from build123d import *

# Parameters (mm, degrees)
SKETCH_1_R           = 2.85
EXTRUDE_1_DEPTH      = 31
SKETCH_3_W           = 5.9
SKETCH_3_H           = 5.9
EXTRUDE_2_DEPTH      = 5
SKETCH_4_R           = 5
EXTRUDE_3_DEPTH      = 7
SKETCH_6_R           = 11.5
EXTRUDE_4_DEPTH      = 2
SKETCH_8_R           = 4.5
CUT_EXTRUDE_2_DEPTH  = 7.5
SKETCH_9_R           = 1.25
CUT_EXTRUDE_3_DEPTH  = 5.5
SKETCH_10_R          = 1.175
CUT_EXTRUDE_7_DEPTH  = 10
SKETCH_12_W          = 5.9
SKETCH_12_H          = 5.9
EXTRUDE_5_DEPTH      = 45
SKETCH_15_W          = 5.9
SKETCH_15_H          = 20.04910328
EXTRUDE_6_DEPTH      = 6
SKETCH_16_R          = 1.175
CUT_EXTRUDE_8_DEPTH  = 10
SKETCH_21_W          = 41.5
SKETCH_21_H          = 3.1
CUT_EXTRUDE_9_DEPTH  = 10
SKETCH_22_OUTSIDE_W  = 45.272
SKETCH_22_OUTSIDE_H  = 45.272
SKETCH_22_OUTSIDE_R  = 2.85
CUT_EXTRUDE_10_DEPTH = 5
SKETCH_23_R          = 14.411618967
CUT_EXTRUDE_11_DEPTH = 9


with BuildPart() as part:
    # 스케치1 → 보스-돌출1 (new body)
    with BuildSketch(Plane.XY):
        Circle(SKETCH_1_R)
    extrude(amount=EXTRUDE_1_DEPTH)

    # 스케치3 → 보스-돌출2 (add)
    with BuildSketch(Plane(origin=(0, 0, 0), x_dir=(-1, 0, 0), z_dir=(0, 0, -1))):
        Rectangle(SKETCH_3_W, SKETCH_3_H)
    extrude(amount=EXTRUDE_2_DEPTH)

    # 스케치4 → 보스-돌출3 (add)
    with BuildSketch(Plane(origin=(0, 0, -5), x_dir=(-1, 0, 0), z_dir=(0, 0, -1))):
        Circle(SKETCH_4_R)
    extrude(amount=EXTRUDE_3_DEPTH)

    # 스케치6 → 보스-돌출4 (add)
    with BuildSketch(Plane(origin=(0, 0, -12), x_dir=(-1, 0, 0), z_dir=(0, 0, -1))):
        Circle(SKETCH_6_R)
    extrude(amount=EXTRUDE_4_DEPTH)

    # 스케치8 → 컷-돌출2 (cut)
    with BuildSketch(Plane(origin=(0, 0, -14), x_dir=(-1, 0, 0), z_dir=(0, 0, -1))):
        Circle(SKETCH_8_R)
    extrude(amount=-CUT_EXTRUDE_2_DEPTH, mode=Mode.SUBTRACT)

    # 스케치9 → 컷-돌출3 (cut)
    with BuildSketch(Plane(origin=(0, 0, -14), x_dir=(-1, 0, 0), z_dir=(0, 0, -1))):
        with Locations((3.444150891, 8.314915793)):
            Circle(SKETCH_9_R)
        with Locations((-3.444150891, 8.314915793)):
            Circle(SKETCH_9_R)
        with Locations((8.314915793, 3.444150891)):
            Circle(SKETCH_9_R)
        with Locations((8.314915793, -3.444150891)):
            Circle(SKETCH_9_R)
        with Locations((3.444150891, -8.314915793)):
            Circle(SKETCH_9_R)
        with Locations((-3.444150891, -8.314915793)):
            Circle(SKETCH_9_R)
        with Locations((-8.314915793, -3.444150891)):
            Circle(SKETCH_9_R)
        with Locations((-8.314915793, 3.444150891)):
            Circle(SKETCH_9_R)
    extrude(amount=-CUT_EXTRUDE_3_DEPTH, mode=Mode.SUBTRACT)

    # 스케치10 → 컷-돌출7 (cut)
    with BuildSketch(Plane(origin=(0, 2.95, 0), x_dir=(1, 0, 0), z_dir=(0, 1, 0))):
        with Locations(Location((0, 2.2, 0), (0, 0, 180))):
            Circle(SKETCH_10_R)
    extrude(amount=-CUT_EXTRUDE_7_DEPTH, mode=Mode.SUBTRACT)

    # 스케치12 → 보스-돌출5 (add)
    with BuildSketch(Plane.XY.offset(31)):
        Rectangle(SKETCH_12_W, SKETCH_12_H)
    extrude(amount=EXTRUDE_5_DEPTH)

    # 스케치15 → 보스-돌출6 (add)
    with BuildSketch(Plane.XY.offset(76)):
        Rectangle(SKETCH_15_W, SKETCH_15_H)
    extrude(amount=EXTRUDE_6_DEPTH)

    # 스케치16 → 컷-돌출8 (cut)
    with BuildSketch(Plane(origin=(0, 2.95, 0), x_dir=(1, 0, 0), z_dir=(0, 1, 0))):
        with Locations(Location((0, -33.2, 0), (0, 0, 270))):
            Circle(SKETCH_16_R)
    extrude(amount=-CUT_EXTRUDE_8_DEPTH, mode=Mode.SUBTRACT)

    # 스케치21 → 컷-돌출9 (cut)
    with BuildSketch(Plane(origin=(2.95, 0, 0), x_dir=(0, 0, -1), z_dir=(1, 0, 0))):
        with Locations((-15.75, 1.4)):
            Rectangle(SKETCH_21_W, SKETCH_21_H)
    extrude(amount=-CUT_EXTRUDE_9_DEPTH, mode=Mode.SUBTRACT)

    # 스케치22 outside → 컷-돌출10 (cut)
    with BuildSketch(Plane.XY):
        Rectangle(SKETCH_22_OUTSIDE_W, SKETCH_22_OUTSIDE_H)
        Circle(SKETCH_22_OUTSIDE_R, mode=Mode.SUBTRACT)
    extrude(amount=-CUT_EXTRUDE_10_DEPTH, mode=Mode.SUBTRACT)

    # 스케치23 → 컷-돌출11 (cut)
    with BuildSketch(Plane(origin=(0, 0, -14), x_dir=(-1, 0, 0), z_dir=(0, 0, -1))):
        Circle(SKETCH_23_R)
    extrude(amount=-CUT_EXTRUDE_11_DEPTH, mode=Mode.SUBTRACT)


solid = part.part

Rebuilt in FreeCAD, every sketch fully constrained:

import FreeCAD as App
import Part
import Sketcher
Q = App.Units.Quantity

doc = App.newDocument("Part")
body = doc.addObject("PartDesign::Body", "Body")

sketch1 = doc.addObject("Sketcher::SketchObject", "Sketch")
body.addObject(sketch1)
sketch1.AttachmentSupport = (doc.XY_Plane, [""])
sketch1.MapMode = "FlatFace"
sketch1.addGeometry(Part.Circle(App.Vector(0, 0, 0), App.Vector(0, 0, 1), 2.85), False)
sketch1.addConstraint([
    Sketcher.Constraint("Coincident", 0, 3, -1, 1),
    Sketcher.Constraint("Diameter", 0, Q("5.7 mm")),
])
pad1 = doc.addObject("PartDesign::Pad", "Pad")
body.addObject(pad1)
pad1.Profile = sketch1
pad1.Length = 31

sketch2 = doc.addObject("Sketcher::SketchObject", "Sketch001")
body.addObject(sketch2)
sketch2.AttachmentSupport = (doc.XY_Plane, [""])
sketch2.MapMode = "FlatFace"
sketch2.addGeometry([
    Part.LineSegment(App.Vector(2.95, 2.95, 0), App.Vector(2.95, -2.95, 0)),
    Part.LineSegment(App.Vector(2.95, -2.95, 0), App.Vector(-2.95, -2.95, 0)),
    Part.LineSegment(App.Vector(-2.95, -2.95, 0), App.Vector(-2.95, 2.95, 0)),
    Part.LineSegment(App.Vector(-2.95, 2.95, 0), App.Vector(2.95, 2.95, 0)),
], False)
sketch2.addConstraint([
    Sketcher.Constraint("Coincident", 0, 2, 1, 1),
    Sketcher.Constraint("Coincident", 1, 2, 2, 1),
    Sketcher.Constraint("Coincident", 2, 2, 3, 1),
    Sketcher.Constraint("Coincident", 3, 2, 0, 1),
    Sketcher.Constraint("Vertical", 0),
    Sketcher.Constraint("Horizontal", 1),
    Sketcher.Constraint("Vertical", 2),
    Sketcher.Constraint("Horizontal", 3),
    Sketcher.Constraint("Symmetric", 0, 2, 2, 2, -1, 1),
    Sketcher.Constraint("Equal", 3, 0),
    Sketcher.Constraint("DistanceX", 1, 2, 1, 1, Q("5.9 mm")),
])
pad2 = doc.addObject("PartDesign::Pad", "Pad001")
body.addObject(pad2)
pad2.Profile = sketch2
pad2.Length = 5
pad2.Reversed = True

sketch3 = doc.addObject("Sketcher::SketchObject", "Sketch002")
body.addObject(sketch3)
sketch3.AttachmentSupport = (doc.XY_Plane, [""])
sketch3.MapMode = "FlatFace"
sketch3.AttachmentOffset = App.Placement(App.Vector(0, 0, -5), App.Rotation())
sketch3.addGeometry(Part.Circle(App.Vector(0, 0, 0), App.Vector(0, 0, 1), 5), False)
sketch3.addConstraint([
    Sketcher.Constraint("Coincident", 0, 3, -1, 1),
    Sketcher.Constraint("Diameter", 0, Q("10 mm")),
])
pad3 = doc.addObject("PartDesign::Pad", "Pad002")
body.addObject(pad3)
pad3.Profile = sketch3
pad3.Length = 7
pad3.Reversed = True

sketch4 = doc.addObject("Sketcher::SketchObject", "Sketch003")
body.addObject(sketch4)
sketch4.AttachmentSupport = (doc.XY_Plane, [""])
sketch4.MapMode = "FlatFace"
sketch4.AttachmentOffset = App.Placement(App.Vector(0, 0, -12), App.Rotation())
sketch4.addGeometry(Part.Circle(App.Vector(0, 0, 0), App.Vector(0, 0, 1), 11.5), False)
sketch4.addConstraint([
    Sketcher.Constraint("Coincident", 0, 3, -1, 1),
    Sketcher.Constraint("Diameter", 0, Q("23 mm")),
])
pad4 = doc.addObject("PartDesign::Pad", "Pad003")
body.addObject(pad4)
pad4.Profile = sketch4
pad4.Length = 2
pad4.Reversed = True

sketch5 = doc.addObject("Sketcher::SketchObject", "Sketch004")
body.addObject(sketch5)
sketch5.AttachmentSupport = (doc.XY_Plane, [""])
sketch5.MapMode = "FlatFace"
sketch5.AttachmentOffset = App.Placement(App.Vector(0, 0, -14), App.Rotation())
sketch5.addGeometry(Part.Circle(App.Vector(0, 0, 0), App.Vector(0, 0, 1), 4.5), False)
sketch5.addConstraint([
    Sketcher.Constraint("Coincident", 0, 3, -1, 1),
    Sketcher.Constraint("Diameter", 0, Q("9 mm")),
])
pocket1 = doc.addObject("PartDesign::Pocket", "Pocket")
body.addObject(pocket1)
pocket1.Profile = sketch5
pocket1.Length = 7.5
pocket1.Reversed = True

sketch6 = doc.addObject("Sketcher::SketchObject", "Sketch005")
body.addObject(sketch6)
sketch6.AttachmentSupport = (doc.XY_Plane, [""])
sketch6.MapMode = "FlatFace"
sketch6.AttachmentOffset = App.Placement(App.Vector(0, 0, -14), App.Rotation())
sketch6.addGeometry([
    Part.Circle(App.Vector(-3.444151, 8.314916, 0), App.Vector(0, 0, 1), 1.25),
    Part.Circle(App.Vector(3.444151, 8.314916, 0), App.Vector(0, 0, 1), 1.25),
    Part.Circle(App.Vector(-8.314916, 3.444151, 0), App.Vector(0, 0, 1), 1.25),
    Part.Circle(App.Vector(-8.314916, -3.444151, 0), App.Vector(0, 0, 1), 1.25),
    Part.Circle(App.Vector(-3.444151, -8.314916, 0), App.Vector(0, 0, 1), 1.25),
    Part.Circle(App.Vector(3.444151, -8.314916, 0), App.Vector(0, 0, 1), 1.25),
    Part.Circle(App.Vector(8.314916, -3.444151, 0), App.Vector(0, 0, 1), 1.25),
    Part.Circle(App.Vector(8.314916, 3.444151, 0), App.Vector(0, 0, 1), 1.25),
], False)
sketch6.addConstraint([
    Sketcher.Constraint("Equal", 0, 1),
    Sketcher.Constraint("Equal", 1, 2),
    Sketcher.Constraint("Equal", 2, 3),
    Sketcher.Constraint("Equal", 3, 4),
    Sketcher.Constraint("Equal", 4, 5),
    Sketcher.Constraint("Equal", 5, 6),
    Sketcher.Constraint("Equal", 6, 7),
    Sketcher.Constraint("Symmetric", 1, 3, 4, 3, -1, 1),
    Sketcher.Constraint("Symmetric", 0, 3, 5, 3, -1, 1),
    Sketcher.Constraint("Symmetric", 2, 3, 6, 3, -1, 1),
    Sketcher.Constraint("Symmetric", 3, 3, 7, 3, -1, 1),
    Sketcher.Constraint("Symmetric", 0, 3, 1, 3, -2),
    Sketcher.Constraint("Symmetric", 3, 3, 6, 3, -2),
    Sketcher.Constraint("Diameter", 0, Q("2.5 mm")),
    Sketcher.Constraint("DistanceX", 0, 3, 1, 3, Q("6.888302 mm")),
    Sketcher.Constraint("DistanceY", 3, 3, 2, 3, Q("6.888302 mm")),
    Sketcher.Constraint("DistanceY", 4, 3, 0, 3, Q("16.629832 mm")),
    Sketcher.Constraint("DistanceX", 3, 3, 6, 3, Q("16.629832 mm")),
])
pocket2 = doc.addObject("PartDesign::Pocket", "Pocket001")
body.addObject(pocket2)
pocket2.Profile = sketch6
pocket2.Length = 5.5
pocket2.Reversed = True

sketch7 = doc.addObject("Sketcher::SketchObject", "Sketch006")
body.addObject(sketch7)
sketch7.AttachmentSupport = (doc.XZ_Plane, [""])
sketch7.MapMode = "FlatFace"
sketch7.AttachmentOffset = App.Placement(App.Vector(0, 0, -2.95), App.Rotation())
sketch7.addGeometry(Part.Circle(App.Vector(0, -2.2, 0), App.Vector(0, 0, 1), 1.175), False)
sketch7.addConstraint([
    Sketcher.Constraint("PointOnObject", 0, 3, -2),
    Sketcher.Constraint("Diameter", 0, Q("2.35 mm")),
    Sketcher.Constraint("DistanceY", 0, 3, -1, 1, Q("2.2 mm")),
])
pocket3 = doc.addObject("PartDesign::Pocket", "Pocket002")
body.addObject(pocket3)
pocket3.Profile = sketch7
pocket3.Length = 10
pocket3.Reversed = True

sketch8 = doc.addObject("Sketcher::SketchObject", "Sketch007")
body.addObject(sketch8)
sketch8.AttachmentSupport = (doc.XY_Plane, [""])
sketch8.MapMode = "FlatFace"
sketch8.AttachmentOffset = App.Placement(App.Vector(0, 0, 31), App.Rotation())
sketch8.addGeometry([
    Part.LineSegment(App.Vector(-2.95, 2.95, 0), App.Vector(-2.95, -2.95, 0)),
    Part.LineSegment(App.Vector(-2.95, -2.95, 0), App.Vector(2.95, -2.95, 0)),
    Part.LineSegment(App.Vector(2.95, -2.95, 0), App.Vector(2.95, 2.95, 0)),
    Part.LineSegment(App.Vector(2.95, 2.95, 0), App.Vector(-2.95, 2.95, 0)),
], False)
sketch8.addConstraint([
    Sketcher.Constraint("Coincident", 0, 2, 1, 1),
    Sketcher.Constraint("Coincident", 1, 2, 2, 1),
    Sketcher.Constraint("Coincident", 2, 2, 3, 1),
    Sketcher.Constraint("Coincident", 3, 2, 0, 1),
    Sketcher.Constraint("Vertical", 0),
    Sketcher.Constraint("Horizontal", 1),
    Sketcher.Constraint("Vertical", 2),
    Sketcher.Constraint("Horizontal", 3),
    Sketcher.Constraint("Symmetric", 0, 2, 2, 2, -1, 1),
    Sketcher.Constraint("Equal", 3, 0),
    Sketcher.Constraint("DistanceX", 1, 1, 1, 2, Q("5.9 mm")),
])
pad5 = doc.addObject("PartDesign::Pad", "Pad004")
body.addObject(pad5)
pad5.Profile = sketch8
pad5.Length = 45

sketch9 = doc.addObject("Sketcher::SketchObject", "Sketch008")
body.addObject(sketch9)
sketch9.AttachmentSupport = (doc.XY_Plane, [""])
sketch9.MapMode = "FlatFace"
sketch9.AttachmentOffset = App.Placement(App.Vector(0, 0, 76), App.Rotation())
sketch9.addGeometry([
    Part.LineSegment(App.Vector(-2.95, 10.024552, 0), App.Vector(-2.95, -10.024552, 0)),
    Part.LineSegment(App.Vector(-2.95, -10.024552, 0), App.Vector(2.95, -10.024552, 0)),
    Part.LineSegment(App.Vector(2.95, -10.024552, 0), App.Vector(2.95, 10.024552, 0)),
    Part.LineSegment(App.Vector(2.95, 10.024552, 0), App.Vector(-2.95, 10.024552, 0)),
], False)
sketch9.addConstraint([
    Sketcher.Constraint("Coincident", 0, 2, 1, 1),
    Sketcher.Constraint("Coincident", 1, 2, 2, 1),
    Sketcher.Constraint("Coincident", 2, 2, 3, 1),
    Sketcher.Constraint("Coincident", 3, 2, 0, 1),
    Sketcher.Constraint("Vertical", 0),
    Sketcher.Constraint("Horizontal", 1),
    Sketcher.Constraint("Vertical", 2),
    Sketcher.Constraint("Horizontal", 3),
    Sketcher.Constraint("Symmetric", 0, 2, 2, 2, -1, 1),
    Sketcher.Constraint("DistanceX", 1, 1, 1, 2, Q("5.9 mm")),
    Sketcher.Constraint("DistanceY", 0, 2, 0, 1, Q("20.049103 mm")),
])
pad6 = doc.addObject("PartDesign::Pad", "Pad005")
body.addObject(pad6)
pad6.Profile = sketch9
pad6.Length = 6

sketch10 = doc.addObject("Sketcher::SketchObject", "Sketch009")
body.addObject(sketch10)
sketch10.AttachmentSupport = (doc.XZ_Plane, [""])
sketch10.MapMode = "FlatFace"
sketch10.AttachmentOffset = App.Placement(App.Vector(0, 0, -2.95), App.Rotation())
sketch10.addGeometry(Part.Circle(App.Vector(0, 33.2, 0), App.Vector(0, 0, 1), 1.175), False)
sketch10.addConstraint([
    Sketcher.Constraint("PointOnObject", 0, 3, -2),
    Sketcher.Constraint("Diameter", 0, Q("2.35 mm")),
    Sketcher.Constraint("DistanceY", -1, 1, 0, 3, Q("33.2 mm")),
])
pocket4 = doc.addObject("PartDesign::Pocket", "Pocket003")
body.addObject(pocket4)
pocket4.Profile = sketch10
pocket4.Length = 10
pocket4.Reversed = True

sketch11 = doc.addObject("Sketcher::SketchObject", "Sketch010")
body.addObject(sketch11)
sketch11.AttachmentSupport = (doc.YZ_Plane, [""])
sketch11.MapMode = "FlatFace"
sketch11.AttachmentOffset = App.Placement(App.Vector(0, 0, 2.95), App.Rotation())
sketch11.addGeometry([
    Part.LineSegment(App.Vector(2.95, 36.5, 0), App.Vector(-0.15, 36.5, 0)),
    Part.LineSegment(App.Vector(-0.15, 36.5, 0), App.Vector(-0.15, -5, 0)),
    Part.LineSegment(App.Vector(-0.15, -5, 0), App.Vector(2.95, -5, 0)),
    Part.LineSegment(App.Vector(2.95, -5, 0), App.Vector(2.95, 36.5, 0)),
], False)
sketch11.addConstraint([
    Sketcher.Constraint("Coincident", 0, 2, 1, 1),
    Sketcher.Constraint("Coincident", 1, 2, 2, 1),
    Sketcher.Constraint("Coincident", 2, 2, 3, 1),
    Sketcher.Constraint("Coincident", 3, 2, 0, 1),
    Sketcher.Constraint("Horizontal", 0),
    Sketcher.Constraint("Vertical", 1),
    Sketcher.Constraint("Horizontal", 2),
    Sketcher.Constraint("Vertical", 3),
    Sketcher.Constraint("DistanceX", 0, 2, 0, 1, Q("3.1 mm")),
    Sketcher.Constraint("DistanceY", 1, 2, 1, 1, Q("41.5 mm")),
    Sketcher.Constraint("DistanceY", 1, 2, -1, 1, Q("5 mm")),
    Sketcher.Constraint("DistanceX", 0, 2, -1, 1, Q("0.15 mm")),
])
pocket5 = doc.addObject("PartDesign::Pocket", "Pocket004")
body.addObject(pocket5)
pocket5.Profile = sketch11
pocket5.Length = 10

sketch12 = doc.addObject("Sketcher::SketchObject", "Sketch011")
body.addObject(sketch12)
sketch12.AttachmentSupport = (doc.XY_Plane, [""])
sketch12.MapMode = "FlatFace"
sketch12.addGeometry([
    Part.LineSegment(App.Vector(-22.636, 22.636, 0), App.Vector(-22.636, -22.636, 0)),
    Part.LineSegment(App.Vector(-22.636, -22.636, 0), App.Vector(22.636, -22.636, 0)),
    Part.LineSegment(App.Vector(22.636, -22.636, 0), App.Vector(22.636, 22.636, 0)),
    Part.LineSegment(App.Vector(22.636, 22.636, 0), App.Vector(-22.636, 22.636, 0)),
    Part.Circle(App.Vector(0, 0, 0), App.Vector(0, 0, 1), 2.85),
], False)
sketch12.addConstraint([
    Sketcher.Constraint("Coincident", 0, 2, 1, 1),
    Sketcher.Constraint("Coincident", 1, 2, 2, 1),
    Sketcher.Constraint("Coincident", 2, 2, 3, 1),
    Sketcher.Constraint("Coincident", 3, 2, 0, 1),
    Sketcher.Constraint("Vertical", 0),
    Sketcher.Constraint("Horizontal", 1),
    Sketcher.Constraint("Vertical", 2),
    Sketcher.Constraint("Horizontal", 3),
    Sketcher.Constraint("Coincident", 4, 3, -1, 1),
    Sketcher.Constraint("Symmetric", 0, 2, 2, 2, -1, 1),
    Sketcher.Constraint("Equal", 3, 0),
    Sketcher.Constraint("Diameter", 4, Q("5.7 mm")),
    Sketcher.Constraint("DistanceX", 1, 1, 1, 2, Q("45.272 mm")),
])
pocket6 = doc.addObject("PartDesign::Pocket", "Pocket005")
body.addObject(pocket6)
pocket6.Profile = sketch12
pocket6.Length = 5

sketch13 = doc.addObject("Sketcher::SketchObject", "Sketch012")
body.addObject(sketch13)
sketch13.AttachmentSupport = (doc.XY_Plane, [""])
sketch13.MapMode = "FlatFace"
sketch13.AttachmentOffset = App.Placement(App.Vector(0, 0, -14), App.Rotation())
sketch13.addGeometry(Part.Circle(App.Vector(0, 0, 0), App.Vector(0, 0, 1), 14.411619), False)
sketch13.addConstraint([
    Sketcher.Constraint("Coincident", 0, 3, -1, 1),
    Sketcher.Constraint("Diameter", 0, Q("28.823238 mm")),
])
pocket7 = doc.addObject("PartDesign::Pocket", "Pocket006")
body.addObject(pocket7)
pocket7.Profile = sketch13
pocket7.Length = 9
pocket7.Reversed = True

doc.recompute()
